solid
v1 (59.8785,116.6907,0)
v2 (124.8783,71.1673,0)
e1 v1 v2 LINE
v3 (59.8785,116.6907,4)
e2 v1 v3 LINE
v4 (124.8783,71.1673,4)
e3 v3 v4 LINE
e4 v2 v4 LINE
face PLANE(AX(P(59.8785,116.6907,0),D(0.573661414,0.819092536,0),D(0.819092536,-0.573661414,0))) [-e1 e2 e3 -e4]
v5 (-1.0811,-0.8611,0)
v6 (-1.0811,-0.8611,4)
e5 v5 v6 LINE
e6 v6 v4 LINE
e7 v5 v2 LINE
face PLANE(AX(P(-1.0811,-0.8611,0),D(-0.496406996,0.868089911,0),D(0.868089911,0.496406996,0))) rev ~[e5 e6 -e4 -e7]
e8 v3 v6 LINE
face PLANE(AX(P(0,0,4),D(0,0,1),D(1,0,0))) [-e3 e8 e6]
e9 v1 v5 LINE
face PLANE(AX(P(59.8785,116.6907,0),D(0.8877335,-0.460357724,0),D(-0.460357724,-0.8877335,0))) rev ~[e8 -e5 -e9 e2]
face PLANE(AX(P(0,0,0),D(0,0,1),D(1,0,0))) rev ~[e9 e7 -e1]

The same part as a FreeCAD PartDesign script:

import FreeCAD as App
import Part
import Sketcher

V = App.Vector
Q = App.Units.Quantity

doc = App.newDocument("Part")
body = doc.addObject("PartDesign::Body", "Body")

sketch1 = doc.addObject("Sketcher::SketchObject", "Sketch")
body.addObject(sketch1)
sketch1.AttachmentSupport = (doc.XY_Plane, [""])
sketch1.MapMode = "FlatFace"
sketch1.addGeometry(Part.LineSegment(V(-1, -1, 0), V(125, 71, 0)), False)
sketch1.addGeometry(Part.LineSegment(V(125, 71, 0), V(60, 117, 0)), False)
sketch1.addGeometry(Part.LineSegment(V(60, 117, 0), V(-1, -1, 0)), False)
sketch1.addConstraint(Sketcher.Constraint("Coincident", 0, 2, 1, 1))
sketch1.addConstraint(Sketcher.Constraint("Coincident", 1, 2, 2, 1))
sketch1.addConstraint(Sketcher.Constraint("Coincident", 2, 2, 0, 1))
sketch1.addConstraint(Sketcher.Constraint("Angle", 2, Q("-117.4102 deg")))
sketch1.addConstraint(Sketcher.Constraint("Distance", 2, Q("132.418 mm")))
sketch1.addConstraint(Sketcher.Constraint("DistanceX", 2, 2, -1, 1, Q("1.081 mm")))
sketch1.addConstraint(Sketcher.Constraint("DistanceY", 2, 2, -1, 1, Q("0.861 mm")))
sketch1.addConstraint(Sketcher.Constraint("Distance", 0, Q("145.0995 mm")))
sketch1.addConstraint(Sketcher.Constraint("Distance", 1, Q("79.3559 mm")))
pad1 = doc.addObject("PartDesign::Pad", "Pad")
body.addObject(pad1)
pad1.Profile = sketch1
pad1.Length = 4

doc.recompute()
